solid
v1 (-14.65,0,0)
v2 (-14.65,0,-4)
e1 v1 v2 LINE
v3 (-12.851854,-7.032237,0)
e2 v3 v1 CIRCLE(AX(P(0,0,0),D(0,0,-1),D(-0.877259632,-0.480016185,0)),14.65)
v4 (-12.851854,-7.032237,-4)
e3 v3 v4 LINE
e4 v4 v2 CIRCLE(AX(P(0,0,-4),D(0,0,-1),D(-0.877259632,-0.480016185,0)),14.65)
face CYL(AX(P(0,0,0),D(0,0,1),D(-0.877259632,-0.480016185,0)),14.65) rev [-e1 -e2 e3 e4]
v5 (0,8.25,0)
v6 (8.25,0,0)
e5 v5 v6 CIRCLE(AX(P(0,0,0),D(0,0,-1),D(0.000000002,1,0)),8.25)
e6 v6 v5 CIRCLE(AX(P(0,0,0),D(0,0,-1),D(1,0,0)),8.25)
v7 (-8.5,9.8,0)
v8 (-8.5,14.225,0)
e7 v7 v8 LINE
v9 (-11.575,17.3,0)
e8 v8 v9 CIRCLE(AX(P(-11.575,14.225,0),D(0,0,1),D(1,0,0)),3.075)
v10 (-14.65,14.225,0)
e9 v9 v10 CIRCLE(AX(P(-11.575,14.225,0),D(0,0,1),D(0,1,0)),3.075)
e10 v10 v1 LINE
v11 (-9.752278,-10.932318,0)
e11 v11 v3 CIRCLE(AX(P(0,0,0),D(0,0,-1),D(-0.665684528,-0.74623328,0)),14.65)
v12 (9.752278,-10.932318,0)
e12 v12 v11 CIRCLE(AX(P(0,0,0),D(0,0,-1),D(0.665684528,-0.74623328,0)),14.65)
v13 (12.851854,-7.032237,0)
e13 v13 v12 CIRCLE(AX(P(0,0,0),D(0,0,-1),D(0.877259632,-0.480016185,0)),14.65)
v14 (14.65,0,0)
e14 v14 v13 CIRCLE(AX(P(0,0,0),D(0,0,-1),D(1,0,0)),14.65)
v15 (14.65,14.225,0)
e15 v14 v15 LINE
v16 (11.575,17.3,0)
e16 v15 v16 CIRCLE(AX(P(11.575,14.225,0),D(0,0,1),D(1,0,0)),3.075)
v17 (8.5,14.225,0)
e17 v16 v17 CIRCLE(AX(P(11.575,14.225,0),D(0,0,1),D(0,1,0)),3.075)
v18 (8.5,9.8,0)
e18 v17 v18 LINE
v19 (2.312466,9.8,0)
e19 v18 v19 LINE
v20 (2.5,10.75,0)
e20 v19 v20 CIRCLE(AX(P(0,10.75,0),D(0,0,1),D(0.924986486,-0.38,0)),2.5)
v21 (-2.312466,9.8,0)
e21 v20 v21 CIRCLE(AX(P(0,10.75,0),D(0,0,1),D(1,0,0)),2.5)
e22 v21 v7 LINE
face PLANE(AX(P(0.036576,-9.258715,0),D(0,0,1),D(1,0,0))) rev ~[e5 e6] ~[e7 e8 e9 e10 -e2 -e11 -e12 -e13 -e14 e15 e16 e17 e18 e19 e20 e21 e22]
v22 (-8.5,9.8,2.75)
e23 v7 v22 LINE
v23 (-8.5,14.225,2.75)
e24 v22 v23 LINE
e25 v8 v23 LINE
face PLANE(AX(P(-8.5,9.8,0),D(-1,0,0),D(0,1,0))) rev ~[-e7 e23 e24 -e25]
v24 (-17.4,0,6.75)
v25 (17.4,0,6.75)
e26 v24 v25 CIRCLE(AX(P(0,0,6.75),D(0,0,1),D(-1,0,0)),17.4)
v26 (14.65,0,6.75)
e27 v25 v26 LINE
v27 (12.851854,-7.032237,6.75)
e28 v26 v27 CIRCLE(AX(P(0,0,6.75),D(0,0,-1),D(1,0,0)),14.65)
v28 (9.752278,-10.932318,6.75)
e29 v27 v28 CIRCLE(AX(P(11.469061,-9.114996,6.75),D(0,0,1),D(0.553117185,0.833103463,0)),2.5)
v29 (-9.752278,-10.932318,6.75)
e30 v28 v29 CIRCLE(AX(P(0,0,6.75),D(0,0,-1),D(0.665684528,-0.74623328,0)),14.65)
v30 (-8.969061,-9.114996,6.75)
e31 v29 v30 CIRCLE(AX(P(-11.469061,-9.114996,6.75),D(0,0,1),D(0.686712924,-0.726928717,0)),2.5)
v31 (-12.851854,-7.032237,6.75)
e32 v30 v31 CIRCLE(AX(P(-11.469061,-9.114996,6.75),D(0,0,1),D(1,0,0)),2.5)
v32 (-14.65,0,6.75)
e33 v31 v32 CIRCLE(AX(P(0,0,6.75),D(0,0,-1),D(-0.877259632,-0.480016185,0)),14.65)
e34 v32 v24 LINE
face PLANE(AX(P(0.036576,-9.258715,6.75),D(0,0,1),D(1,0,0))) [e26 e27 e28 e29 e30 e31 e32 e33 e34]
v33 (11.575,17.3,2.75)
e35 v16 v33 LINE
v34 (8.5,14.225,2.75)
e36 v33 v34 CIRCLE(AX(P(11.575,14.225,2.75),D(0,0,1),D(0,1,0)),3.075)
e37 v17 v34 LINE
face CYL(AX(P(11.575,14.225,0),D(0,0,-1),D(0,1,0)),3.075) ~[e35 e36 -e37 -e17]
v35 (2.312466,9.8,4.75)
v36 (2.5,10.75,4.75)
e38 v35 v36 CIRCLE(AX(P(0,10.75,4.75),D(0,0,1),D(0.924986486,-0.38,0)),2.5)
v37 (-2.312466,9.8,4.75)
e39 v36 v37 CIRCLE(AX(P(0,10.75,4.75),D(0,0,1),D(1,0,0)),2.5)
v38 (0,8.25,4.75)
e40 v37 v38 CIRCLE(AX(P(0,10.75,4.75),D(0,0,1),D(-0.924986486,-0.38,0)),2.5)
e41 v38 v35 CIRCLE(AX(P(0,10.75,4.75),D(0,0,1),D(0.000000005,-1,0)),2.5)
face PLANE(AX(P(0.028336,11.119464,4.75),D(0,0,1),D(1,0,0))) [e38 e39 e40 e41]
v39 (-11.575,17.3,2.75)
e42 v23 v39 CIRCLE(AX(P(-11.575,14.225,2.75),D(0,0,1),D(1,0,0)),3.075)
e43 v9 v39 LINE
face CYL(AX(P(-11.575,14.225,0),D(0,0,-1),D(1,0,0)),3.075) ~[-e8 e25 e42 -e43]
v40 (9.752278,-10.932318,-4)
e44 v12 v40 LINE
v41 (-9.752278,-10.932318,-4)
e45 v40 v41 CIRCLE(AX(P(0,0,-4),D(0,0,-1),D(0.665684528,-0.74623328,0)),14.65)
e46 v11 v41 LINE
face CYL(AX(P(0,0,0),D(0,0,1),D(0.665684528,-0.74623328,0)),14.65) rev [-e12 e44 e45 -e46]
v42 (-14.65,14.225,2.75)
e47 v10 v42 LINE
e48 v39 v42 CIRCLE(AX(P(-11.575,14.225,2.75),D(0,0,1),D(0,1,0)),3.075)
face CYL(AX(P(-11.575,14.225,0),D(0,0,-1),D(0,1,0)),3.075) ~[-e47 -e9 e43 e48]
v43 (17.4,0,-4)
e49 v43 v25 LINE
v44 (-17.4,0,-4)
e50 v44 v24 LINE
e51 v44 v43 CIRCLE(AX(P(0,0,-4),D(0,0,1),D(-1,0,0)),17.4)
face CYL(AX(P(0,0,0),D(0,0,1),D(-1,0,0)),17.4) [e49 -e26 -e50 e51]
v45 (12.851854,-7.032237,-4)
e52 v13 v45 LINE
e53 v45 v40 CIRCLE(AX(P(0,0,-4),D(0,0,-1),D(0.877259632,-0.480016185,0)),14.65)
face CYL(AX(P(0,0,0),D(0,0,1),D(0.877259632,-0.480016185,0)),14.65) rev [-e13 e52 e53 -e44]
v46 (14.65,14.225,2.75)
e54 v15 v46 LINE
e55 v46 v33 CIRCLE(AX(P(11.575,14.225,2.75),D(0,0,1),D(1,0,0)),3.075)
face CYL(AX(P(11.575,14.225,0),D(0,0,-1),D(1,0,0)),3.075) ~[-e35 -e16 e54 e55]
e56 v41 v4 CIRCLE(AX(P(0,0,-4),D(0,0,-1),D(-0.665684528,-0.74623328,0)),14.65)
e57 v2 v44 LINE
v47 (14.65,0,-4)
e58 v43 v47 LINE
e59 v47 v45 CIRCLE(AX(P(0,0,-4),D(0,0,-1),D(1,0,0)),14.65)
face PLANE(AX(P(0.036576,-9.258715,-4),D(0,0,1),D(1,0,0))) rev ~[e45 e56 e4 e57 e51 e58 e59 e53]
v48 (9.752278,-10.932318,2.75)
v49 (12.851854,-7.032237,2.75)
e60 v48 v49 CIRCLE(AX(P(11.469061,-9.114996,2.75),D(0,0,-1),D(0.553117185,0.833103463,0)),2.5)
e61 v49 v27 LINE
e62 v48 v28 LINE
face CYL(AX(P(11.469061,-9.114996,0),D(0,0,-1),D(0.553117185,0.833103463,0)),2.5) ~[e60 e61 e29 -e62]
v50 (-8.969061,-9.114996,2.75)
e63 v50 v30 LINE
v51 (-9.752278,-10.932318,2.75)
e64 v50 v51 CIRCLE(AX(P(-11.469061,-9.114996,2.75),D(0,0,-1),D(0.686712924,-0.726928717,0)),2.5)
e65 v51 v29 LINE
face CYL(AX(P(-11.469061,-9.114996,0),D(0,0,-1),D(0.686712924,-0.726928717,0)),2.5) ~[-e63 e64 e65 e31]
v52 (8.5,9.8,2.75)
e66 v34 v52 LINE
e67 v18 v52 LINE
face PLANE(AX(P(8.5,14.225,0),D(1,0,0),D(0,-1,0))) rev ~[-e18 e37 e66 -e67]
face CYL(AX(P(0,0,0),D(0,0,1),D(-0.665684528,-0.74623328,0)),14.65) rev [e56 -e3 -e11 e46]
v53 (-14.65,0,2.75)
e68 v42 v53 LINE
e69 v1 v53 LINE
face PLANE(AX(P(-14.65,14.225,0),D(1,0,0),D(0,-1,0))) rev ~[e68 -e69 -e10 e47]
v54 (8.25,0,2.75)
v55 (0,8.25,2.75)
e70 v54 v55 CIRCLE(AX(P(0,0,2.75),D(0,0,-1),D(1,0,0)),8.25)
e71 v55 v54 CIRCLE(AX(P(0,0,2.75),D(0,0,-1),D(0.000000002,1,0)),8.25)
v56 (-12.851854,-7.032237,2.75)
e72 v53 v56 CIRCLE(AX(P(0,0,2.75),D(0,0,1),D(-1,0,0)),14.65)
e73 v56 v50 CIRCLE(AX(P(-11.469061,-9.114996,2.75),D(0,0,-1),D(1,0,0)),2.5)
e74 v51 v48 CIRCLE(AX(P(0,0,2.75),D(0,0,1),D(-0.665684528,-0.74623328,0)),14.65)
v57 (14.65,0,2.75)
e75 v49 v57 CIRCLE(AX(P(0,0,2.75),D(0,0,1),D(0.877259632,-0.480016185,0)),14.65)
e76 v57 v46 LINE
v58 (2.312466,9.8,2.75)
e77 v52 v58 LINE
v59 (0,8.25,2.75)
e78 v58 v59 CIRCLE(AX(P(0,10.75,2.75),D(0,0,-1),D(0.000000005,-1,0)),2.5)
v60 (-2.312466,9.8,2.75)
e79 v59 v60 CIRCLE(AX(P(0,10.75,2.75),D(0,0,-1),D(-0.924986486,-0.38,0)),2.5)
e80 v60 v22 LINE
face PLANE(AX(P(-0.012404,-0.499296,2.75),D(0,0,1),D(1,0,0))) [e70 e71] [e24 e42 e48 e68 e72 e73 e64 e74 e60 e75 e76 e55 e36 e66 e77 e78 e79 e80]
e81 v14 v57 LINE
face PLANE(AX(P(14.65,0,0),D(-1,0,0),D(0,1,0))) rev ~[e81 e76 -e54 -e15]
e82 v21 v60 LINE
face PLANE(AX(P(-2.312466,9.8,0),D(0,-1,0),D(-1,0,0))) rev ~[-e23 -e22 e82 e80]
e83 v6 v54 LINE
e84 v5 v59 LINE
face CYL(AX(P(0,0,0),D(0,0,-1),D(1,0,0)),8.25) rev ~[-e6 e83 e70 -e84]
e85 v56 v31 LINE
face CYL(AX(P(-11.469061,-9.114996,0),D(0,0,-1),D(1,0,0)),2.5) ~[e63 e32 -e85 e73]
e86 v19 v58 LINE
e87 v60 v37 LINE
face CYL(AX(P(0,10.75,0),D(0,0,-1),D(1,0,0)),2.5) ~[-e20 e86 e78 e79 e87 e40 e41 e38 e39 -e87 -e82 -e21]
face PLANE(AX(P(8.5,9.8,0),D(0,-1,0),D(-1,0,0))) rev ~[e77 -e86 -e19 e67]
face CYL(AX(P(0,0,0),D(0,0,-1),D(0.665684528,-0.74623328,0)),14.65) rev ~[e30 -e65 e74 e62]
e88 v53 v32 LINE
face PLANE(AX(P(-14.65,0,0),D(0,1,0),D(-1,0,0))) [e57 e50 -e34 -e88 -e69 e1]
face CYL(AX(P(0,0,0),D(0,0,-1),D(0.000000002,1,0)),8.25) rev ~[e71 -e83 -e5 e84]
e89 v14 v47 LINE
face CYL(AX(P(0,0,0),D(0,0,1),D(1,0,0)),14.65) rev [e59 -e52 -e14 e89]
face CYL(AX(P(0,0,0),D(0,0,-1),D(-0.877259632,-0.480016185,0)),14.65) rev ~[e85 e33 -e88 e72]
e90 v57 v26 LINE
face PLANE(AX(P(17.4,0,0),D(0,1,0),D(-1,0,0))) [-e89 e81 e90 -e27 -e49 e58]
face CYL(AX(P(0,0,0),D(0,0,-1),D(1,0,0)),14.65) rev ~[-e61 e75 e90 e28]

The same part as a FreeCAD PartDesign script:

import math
import FreeCAD as App
import Part
import Sketcher
Q = App.Units.Quantity

doc = App.newDocument("Part")
body = doc.addObject("PartDesign::Body", "Body")

sketch1 = body.newObject("Sketcher::SketchObject", "Sketch")
sketch1.AttachmentSupport = (doc.getObject("XY_Plane"), [""])
sketch1.MapMode = "FlatFace"
sketch1.addGeometry([
    Part.LineSegment(App.Vector(8.5, 9.8, 0), App.Vector(2.312466, 9.8, 0)),
    Part.ArcOfCircle(Part.Circle(App.Vector(0, 10.75, 0), App.Vector(0, 0, 1), 2.5), math.radians(-22.333683), math.radians(0)),
    Part.ArcOfCircle(Part.Circle(App.Vector(0, 10.75, 0), App.Vector(0, 0, 1), 2.5), math.radians(0), math.radians(202.333683)),
    Part.LineSegment(App.Vector(-2.312466, 9.8, 0), App.Vector(-8.5, 9.8, 0)),
    Part.LineSegment(App.Vector(-8.5, 9.8, 0), App.Vector(-8.5, 14.225, 0)),
    Part.ArcOfCircle(Part.Circle(App.Vector(-11.575, 14.225, 0), App.Vector(0, 0, 1), 3.075), math.radians(0), math.radians(90)),
    Part.ArcOfCircle(Part.Circle(App.Vector(-11.575, 14.225, 0), App.Vector(0, 0, 1), 3.075), math.radians(90), math.radians(180)),
    Part.LineSegment(App.Vector(-14.65, 14.225, 0), App.Vector(-14.65, 0, 0)),
    Part.ArcOfCircle(Part.Circle(App.Vector(0, 0, 0), App.Vector(0, 0, 1), 14.65), math.radians(180), math.radians(208.686459)),
    Part.ArcOfCircle(Part.Circle(App.Vector(0, 0, 0), App.Vector(0, 0, 1), 14.65), math.radians(-151.313541), math.radians(-131.734862)),
    Part.ArcOfCircle(Part.Circle(App.Vector(0, 0, 0), App.Vector(0, 0, 1), 14.65), math.radians(-131.734862), math.radians(-48.265138)),
    Part.ArcOfCircle(Part.Circle(App.Vector(0, 0, 0), App.Vector(0, 0, 1), 14.65), math.radians(-48.265138), math.radians(-28.686459)),
    Part.ArcOfCircle(Part.Circle(App.Vector(0, 0, 0), App.Vector(0, 0, 1), 14.65), math.radians(-28.686459), math.radians(0)),
    Part.LineSegment(App.Vector(14.65, 0, 0), App.Vector(14.65, 14.225, 0)),
    Part.ArcOfCircle(Part.Circle(App.Vector(11.575, 14.225, 0), App.Vector(0, 0, 1), 3.075), math.radians(0), math.radians(90)),
    Part.ArcOfCircle(Part.Circle(App.Vector(11.575, 14.225, 0), App.Vector(0, 0, 1), 3.075), math.radians(90), math.radians(180)),
    Part.LineSegment(App.Vector(8.5, 14.225, 0), App.Vector(8.5, 9.8, 0)),
    Part.ArcOfCircle(Part.Circle(App.Vector(0, 0, 0), App.Vector(0, 0, 1), 8.25), math.radians(90), math.radians(360)),
    Part.ArcOfCircle(Part.Circle(App.Vector(0, 0, 0), App.Vector(0, 0, 1), 8.25), math.radians(0), math.radians(90)),
], False)
sketch1.addConstraint([
    Sketcher.Constraint("Coincident", 0, 2, 1, 1),
    Sketcher.Constraint("Tangent", 1, 2, 2, 1),
    Sketcher.Constraint("Coincident", 2, 2, 3, 1),
    Sketcher.Constraint("Coincident", 3, 2, 4, 1),
    Sketcher.Constraint("Tangent", 4, 2, 5, 1),
    Sketcher.Constraint("Tangent", 5, 2, 6, 1),
    Sketcher.Constraint("Tangent", 6, 2, 7, 1),
    Sketcher.Constraint("Tangent", 7, 2, 8, 1),
    Sketcher.Constraint("Tangent", 8, 2, 9, 1),
    Sketcher.Constraint("Tangent", 9, 2, 10, 1),
    Sketcher.Constraint("Tangent", 10, 2, 11, 1),
    Sketcher.Constraint("Tangent", 11, 2, 12, 1),
    Sketcher.Constraint("Tangent", 12, 2, 13, 1),
    Sketcher.Constraint("Tangent", 13, 2, 14, 1),
    Sketcher.Constraint("Tangent", 14, 2, 15, 1),
    Sketcher.Constraint("Tangent", 15, 2, 16, 1),
    Sketcher.Constraint("Coincident", 16, 2, 0, 1),
    Sketcher.Constraint("Tangent", 17, 1, 18, 2),
    Sketcher.Constraint("Coincident", 18, 1, 17, 2),
    Sketcher.Constraint("Horizontal", 0),
    Sketcher.Constraint("Horizontal", 3),
    Sketcher.Constraint("Vertical", 4),
    Sketcher.Constraint("Vertical", 7),
    Sketcher.Constraint("Vertical", 13),
    Sketcher.Constraint("Vertical", 16),
    Sketcher.Constraint("Coincident", 8, 3, -1, 1),
    Sketcher.Constraint("Coincident", 10, 3, -1, 1),
    Sketcher.Constraint("Coincident", 12, 3, -1, 1),
    Sketcher.Constraint("Coincident", 17, 3, -1, 1),
    Sketcher.Constraint("Equal", 1, 2),
    Sketcher.Constraint("Equal", 5, 6),
    Sketcher.Constraint("Equal", 6, 14),
    Sketcher.Constraint("Equal", 14, 15),
    Sketcher.Constraint("Symmetric", 0, 2, 2, 2, -2),
    Sketcher.Constraint("Symmetric", 5, 2, 14, 2, -2),
    Sketcher.Constraint("PointOnObject", 17, 1, -2),
    Sketcher.Constraint("PointOnObject", 18, 1, -1),
    Sketcher.Constraint("Horizontal", 2, 3, 1, 2),
    Sketcher.Constraint("Horizontal", 9, 2, 10, 2),
    Sketcher.Constraint("Horizontal", 8, 2, 11, 2),
    Sketcher.Constraint("Vertical", 6, 3, 5, 2),
    Sketcher.Constraint("Radius", 1, Q("2.5 mm")),
    Sketcher.Constraint("Radius", 8, Q("14.65 mm")),
    Sketcher.Constraint("Radius", 17, Q("8.25 mm")),
    Sketcher.Constraint("Radius", 5, Q("3.075 mm")),
    Sketcher.Constraint("DistanceY", -1, 1, 0, 2, Q("9.8 mm")),
    Sketcher.Constraint("DistanceY", -1, 1, 5, 2, Q("17.3 mm")),
    Sketcher.Constraint("DistanceY", 17, 1, 1, 3, Q("2.5 mm")),
    Sketcher.Constraint("DistanceX", 9, 2, -1, 1, Q("9.752278 mm")),
    Sketcher.Constraint("DistanceY", 9, 2, 8, 2, Q("3.90008 mm")),
])
pad1 = body.newObject("PartDesign::Pad", "Pad")
pad1.Profile = sketch1
pad1.Length = 2.75

sketch2 = body.newObject("Sketcher::SketchObject", "Sketch001")
sketch2.AttachmentSupport = (doc.getObject("XY_Plane"), [""])
sketch2.MapMode = "FlatFace"
sketch2.addGeometry([
    Part.ArcOfCircle(Part.Circle(App.Vector(0, 0, 0), App.Vector(0, 0, 1), 14.65), math.radians(180), math.radians(208.686459)),
    Part.LineSegment(App.Vector(-14.65, 0, 0), App.Vector(-17.4, 0, 0)),
    Part.ArcOfCircle(Part.Circle(App.Vector(0, 0, 0), App.Vector(0, 0, 1), 17.4), math.radians(180), math.radians(360)),
    Part.LineSegment(App.Vector(17.4, 0, 0), App.Vector(14.65, 0, 0)),
    Part.ArcOfCircle(Part.Circle(App.Vector(0, 0, 0), App.Vector(0, 0, 1), 14.65), math.radians(-28.686459), math.radians(0)),
    Part.ArcOfCircle(Part.Circle(App.Vector(0, 0, 0), App.Vector(0, 0, 1), 14.65), math.radians(-48.265138), math.radians(-28.686459)),
    Part.ArcOfCircle(Part.Circle(App.Vector(0, 0, 0), App.Vector(0, 0, 1), 14.65), math.radians(-131.734862), math.radians(-48.265138)),
    Part.ArcOfCircle(Part.Circle(App.Vector(0, 0, 0), App.Vector(0, 0, 1), 14.65), math.radians(-151.313541), math.radians(-131.734862)),
], False)
sketch2.addConstraint([
    Sketcher.Constraint("Coincident", 0, 1, 1, 1),
    Sketcher.Constraint("Coincident", 1, 2, 2, 1),
    Sketcher.Constraint("Coincident", 2, 2, 3, 1),
    Sketcher.Constraint("Coincident", 3, 2, 4, 2),
    Sketcher.Constraint("Tangent", 4, 1, 5, 2),
    Sketcher.Constraint("Tangent", 5, 1, 6, 2),
    Sketcher.Constraint("Tangent", 6, 1, 7, 2),
    Sketcher.Constraint("Tangent", 7, 1, 0, 2),
    Sketcher.Constraint("Horizontal", 1),
    Sketcher.Constraint("Horizontal", 3),
    Sketcher.Constraint("Coincident", 0, 3, -1, 1),
    Sketcher.Constraint("Coincident", 2, 3, -1, 1),
    Sketcher.Constraint("Coincident", 4, 3, -1, 1),
    Sketcher.Constraint("Coincident", 6, 3, -1, 1),
    Sketcher.Constraint("PointOnObject", 0, 1, -1),
    Sketcher.Constraint("PointOnObject", 2, 2, -1),
    Sketcher.Constraint("Horizontal", 5, 1, 6, 1),
    Sketcher.Constraint("Horizontal", 4, 1, 7, 1),
    Sketcher.Constraint("Radius", 2, Q("17.4 mm")),
    Sketcher.Constraint("Radius", 0, Q("14.65 mm")),
    Sketcher.Constraint("DistanceX", -1, 1, 5, 1, Q("9.752278 mm")),
    Sketcher.Constraint("DistanceY", 5, 1, 4, 1, Q("3.90008 mm")),
])
pad2 = body.newObject("PartDesign::Pad", "Pad001")
pad2.Profile = sketch2
pad2.Type = "TwoLengths"
pad2.Length = 6.75
pad2.Length2 = 4

sketch3 = body.newObject("Sketcher::SketchObject", "Sketch002")
sketch3.AttachmentSupport = (doc.getObject("XY_Plane"), [""])
sketch3.MapMode = "FlatFace"
sketch3.addGeometry([
    Part.ArcOfCircle(Part.Circle(App.Vector(0, 0, 0), App.Vector(0, 0, 1), 14.65), math.radians(-48.265138), math.radians(-28.686459)),
    Part.ArcOfCircle(Part.Circle(App.Vector(11.469061, -9.114996, 0), App.Vector(0, 0, 1), 2.5), math.radians(56.418871), math.radians(226.629532)),
    Part.ArcOfCircle(Part.Circle(App.Vector(-11.469061, -9.114996, 0), App.Vector(0, 0, 1), 2.5), math.radians(0), math.radians(123.581129)),
    Part.ArcOfCircle(Part.Circle(App.Vector(-11.469061, -9.114996, 0), App.Vector(0, 0, 1), 2.5), math.radians(123.581129), math.radians(313.370468)),
    Part.ArcOfCircle(Part.Circle(App.Vector(-11.469061, -9.114996, 0), App.Vector(0, 0, 1), 2.5), math.radians(-46.629532), math.radians(0)),
], False)
sketch3.addConstraint([
    Sketcher.Constraint("Coincident", 0, 1, 1, 2),
    Sketcher.Constraint("Coincident", 1, 1, 0, 2),
    Sketcher.Constraint("Tangent", 2, 2, 3, 1),
    Sketcher.Constraint("Tangent", 3, 2, 4, 1),
    Sketcher.Constraint("Tangent", 4, 2, 2, 1),
    Sketcher.Constraint("Coincident", 0, 3, -1, 1),
    Sketcher.Constraint("Equal", 1, 2),
    Sketcher.Constraint("Symmetric", 1, 3, 2, 3, -2),
    Sketcher.Constraint("Horizontal", 1, 1, 2, 2),
    Sketcher.Constraint("Horizontal", 0, 1, 3, 2),
    Sketcher.Constraint("Horizontal", 3, 3, 4, 2),
    Sketcher.Constraint("Radius", 1, Q("2.5 mm")),
    Sketcher.Constraint("Radius", 0, Q("14.65 mm")),
    Sketcher.Constraint("DistanceX", -1, 1, 1, 3, Q("11.469061 mm")),
    Sketcher.Constraint("DistanceX", -1, 1, 0, 1, Q("9.752278 mm")),
])
pad3 = body.newObject("PartDesign::Pad", "Pad002")
pad3.Profile = sketch3
pad3.Length = 6.75

sketch4 = body.newObject("Sketcher::SketchObject", "Sketch003")
sketch4.AttachmentSupport = (doc.getObject("XY_Plane"), [""])
sketch4.MapMode = "FlatFace"
sketch4.addGeometry([
    Part.ArcOfCircle(Part.Circle(App.Vector(0, 10.75, 0), App.Vector(0, 0, 1), 2.5), math.radians(0), math.radians(202.333683)),
    Part.ArcOfCircle(Part.Circle(App.Vector(0, 10.75, 0), App.Vector(0, 0, 1), 2.5), math.radians(-157.666317), math.radians(-90)),
    Part.ArcOfCircle(Part.Circle(App.Vector(0, 10.75, 0), App.Vector(0, 0, 1), 2.5), math.radians(-90), math.radians(-22.333683)),
    Part.ArcOfCircle(Part.Circle(App.Vector(0, 10.75, 0), App.Vector(0, 0, 1), 2.5), math.radians(-22.333683), math.radians(0)),
], False)
sketch4.addConstraint([
    Sketcher.Constraint("Tangent", 0, 2, 1, 1),
    Sketcher.Constraint("Tangent", 1, 2, 2, 1),
    Sketcher.Constraint("Tangent", 2, 2, 3, 1),
    Sketcher.Constraint("Tangent", 3, 2, 0, 1),
    Sketcher.Constraint("Equal", 0, 1),
    Sketcher.Constraint("Symmetric", 0, 2, 2, 2, -2),
    Sketcher.Constraint("PointOnObject", 1, 2, -2),
    Sketcher.Constraint("Horizontal", 2, 3, 3, 2),
    Sketcher.Constraint("Radius", 0, Q("2.5 mm")),
    Sketcher.Constraint("DistanceY", -1, 1, 0, 2, Q("9.8 mm")),
    Sketcher.Constraint("DistanceY", -1, 1, 0, 3, Q("10.75 mm")),
])
pad4 = body.newObject("PartDesign::Pad", "Pad003")
pad4.Profile = sketch4
pad4.Length = 4.75

doc.recompute()
